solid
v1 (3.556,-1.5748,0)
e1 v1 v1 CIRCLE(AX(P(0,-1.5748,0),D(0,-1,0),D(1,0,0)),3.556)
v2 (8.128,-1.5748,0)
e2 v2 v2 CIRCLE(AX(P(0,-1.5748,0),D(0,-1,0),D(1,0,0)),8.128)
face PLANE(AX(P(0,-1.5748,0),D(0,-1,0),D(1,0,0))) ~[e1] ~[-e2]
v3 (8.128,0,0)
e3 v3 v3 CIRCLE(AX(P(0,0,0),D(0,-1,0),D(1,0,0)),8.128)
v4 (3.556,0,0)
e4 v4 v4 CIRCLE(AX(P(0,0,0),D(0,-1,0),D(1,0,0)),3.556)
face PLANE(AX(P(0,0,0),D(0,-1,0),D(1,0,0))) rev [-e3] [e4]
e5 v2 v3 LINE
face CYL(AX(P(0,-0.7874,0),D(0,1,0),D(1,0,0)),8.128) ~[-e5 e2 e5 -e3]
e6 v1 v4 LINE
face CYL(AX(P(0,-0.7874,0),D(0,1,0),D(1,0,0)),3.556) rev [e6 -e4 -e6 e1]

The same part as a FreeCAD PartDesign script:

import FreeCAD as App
import Part
import Sketcher
from FreeCAD import Vector
Q = App.Units.Quantity


def add_polygon(sketch, points):
    """Adds a closed chain of lines whose ends are joined by coincident constraints."""
    first, n = sketch.GeometryCount, len(points)
    for a, b in zip(points, points[1:] + points[:1]):
        sketch.addGeometry(Part.LineSegment(App.Vector(*a, 0), App.Vector(*b, 0)), False)
    for i in range(n):
        sketch.addConstraint(Sketcher.Constraint("Coincident", first + i, 2, first + (i + 1) % n, 1))

doc = App.newDocument("Part")
body = doc.addObject("PartDesign::Body", "Body")

# Sketch on XY plane
sketch1 = body.newObject("Sketcher::SketchObject", "Sketch")
sketch1.AttachmentSupport = (doc.getObject("XY_Plane"), [""])
sketch1.MapMode = "FlatFace"
add_polygon(sketch1, [(3.6, 0), (3.6, -1.6), (8.1, -1.6), (8.1, 0)])  # lines 0-3
sketch1.addConstraint(Sketcher.Constraint("Vertical", 0))
sketch1.addConstraint(Sketcher.Constraint("Horizontal", 1))
sketch1.addConstraint(Sketcher.Constraint("Vertical", 2))
sketch1.addConstraint(Sketcher.Constraint("Horizontal", 3))
sketch1.addConstraint(Sketcher.Constraint("PointOnObject", 2, 2, -1))
sketch1.addConstraint(Sketcher.Constraint("DistanceX", 1, 1, 1, 2, Q("0.18 in")))
sketch1.addConstraint(Sketcher.Constraint("DistanceY", 0, 2, 0, 1, Q("0.062 in")))
sketch1.addConstraint(Sketcher.Constraint("DistanceX", -1, 1, 0, 2, Q("0.14 in")))
revolution = body.newObject("PartDesign::Revolution", "Revolution")
revolution.Profile = sketch1
revolution.ReferenceAxis = (sketch1, ["V_Axis"])
revolution.Angle = 360

doc.recompute()
